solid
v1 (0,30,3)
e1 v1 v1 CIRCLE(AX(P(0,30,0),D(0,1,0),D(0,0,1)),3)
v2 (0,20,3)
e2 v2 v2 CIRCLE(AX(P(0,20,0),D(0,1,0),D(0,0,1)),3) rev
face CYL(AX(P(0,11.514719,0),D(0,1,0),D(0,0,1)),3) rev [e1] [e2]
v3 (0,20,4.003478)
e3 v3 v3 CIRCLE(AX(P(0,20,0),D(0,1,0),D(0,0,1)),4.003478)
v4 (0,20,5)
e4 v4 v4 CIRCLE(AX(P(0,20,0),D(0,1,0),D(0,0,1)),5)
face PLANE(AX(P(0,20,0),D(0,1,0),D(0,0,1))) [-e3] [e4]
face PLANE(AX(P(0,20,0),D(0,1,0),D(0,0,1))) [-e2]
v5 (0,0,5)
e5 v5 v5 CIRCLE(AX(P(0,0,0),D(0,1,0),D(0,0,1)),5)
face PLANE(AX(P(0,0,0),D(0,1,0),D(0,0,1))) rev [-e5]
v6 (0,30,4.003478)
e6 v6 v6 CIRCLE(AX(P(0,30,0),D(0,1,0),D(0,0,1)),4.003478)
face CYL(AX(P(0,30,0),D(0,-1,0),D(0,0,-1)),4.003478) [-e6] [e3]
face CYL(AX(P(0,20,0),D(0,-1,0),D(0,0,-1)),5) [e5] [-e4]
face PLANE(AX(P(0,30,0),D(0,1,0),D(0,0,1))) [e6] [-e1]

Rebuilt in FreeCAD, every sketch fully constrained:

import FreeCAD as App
import Part
import Sketcher
from FreeCAD import Vector
Q = App.Units.Quantity

doc = App.newDocument("Part")
params = doc.addObject("Spreadsheet::Sheet", "Params")
for row, (alias, value) in enumerate([
    ("sketch1_diameter", "10 mm"),
    ("pad1_length", "20 mm"),
    ("pad2_length", "10 mm"),
    ("sketch3_diameter", "6 mm"),
    ("pocket1_length", "10 mm"),
], start=1):
    params.set(f"A{row}", alias)
    params.set(f"B{row}", "=" + value)
    params.setAlias(f"B{row}", alias)

body = doc.addObject("PartDesign::Body", "Body")

sketch1 = doc.addObject("Sketcher::SketchObject", "Sketch")
body.addObject(sketch1)
sketch1.AttachmentSupport = (doc.XZ_Plane, [""])
sketch1.MapMode = "FlatFace"
sketch1.addGeometry(Part.Circle(Vector(0, 0, 0), Vector(0, 0, 1), 5), False)
sketch1.addConstraint([
    Sketcher.Constraint("Coincident", 0, 3, -1, 1),
    Sketcher.Constraint("Diameter", 0, Q("10 mm")),
])
sketch1.setExpression("Constraints[1]", "Params.sketch1_diameter")
pad1 = doc.addObject("PartDesign::Pad", "Pad")
body.addObject(pad1)
pad1.Profile = sketch1
pad1.setExpression("Length", "Params.pad1_length")
pad1.Reversed = True

sketch2 = doc.addObject("Sketcher::SketchObject", "Sketch001")
body.addObject(sketch2)
sketch2.AttachmentSupport = (doc.XZ_Plane, [""])
sketch2.MapMode = "FlatFace"
sketch2.AttachmentOffset = App.Placement(Vector(0, 0, -20), App.Rotation())
sketch2.addGeometry(Part.Circle(Vector(0, 0, 0), Vector(0, 0, 1), 4), False)
sketch2.addConstraint([
    Sketcher.Constraint("Coincident", 0, 3, -1, 1),
    Sketcher.Constraint("Diameter", 0, Q("8.006956 mm")),
])
pad2 = doc.addObject("PartDesign::Pad", "Pad001")
body.addObject(pad2)
pad2.Profile = sketch2
pad2.setExpression("Length", "Params.pad2_length")
pad2.Reversed = True

sketch3 = doc.addObject("Sketcher::SketchObject", "Sketch002")
body.addObject(sketch3)
sketch3.AttachmentSupport = (doc.XZ_Plane, [""])
sketch3.MapMode = "FlatFace"
sketch3.AttachmentOffset = App.Placement(Vector(0, 0, -30), App.Rotation())
sketch3.addGeometry(Part.Circle(Vector(0, 0, 0), Vector(0, 0, 1), 3), False)
sketch3.addConstraint([
    Sketcher.Constraint("Coincident", 0, 3, -1, 1),
    Sketcher.Constraint("Diameter", 0, Q("6 mm")),
])
sketch3.setExpression("Constraints[1]", "Params.sketch3_diameter")
pocket1 = doc.addObject("PartDesign::Pocket", "Pocket")
body.addObject(pocket1)
pocket1.Profile = sketch3
pocket1.setExpression("Length", "Params.pocket1_length")
pocket1.Reversed = True

doc.recompute()
